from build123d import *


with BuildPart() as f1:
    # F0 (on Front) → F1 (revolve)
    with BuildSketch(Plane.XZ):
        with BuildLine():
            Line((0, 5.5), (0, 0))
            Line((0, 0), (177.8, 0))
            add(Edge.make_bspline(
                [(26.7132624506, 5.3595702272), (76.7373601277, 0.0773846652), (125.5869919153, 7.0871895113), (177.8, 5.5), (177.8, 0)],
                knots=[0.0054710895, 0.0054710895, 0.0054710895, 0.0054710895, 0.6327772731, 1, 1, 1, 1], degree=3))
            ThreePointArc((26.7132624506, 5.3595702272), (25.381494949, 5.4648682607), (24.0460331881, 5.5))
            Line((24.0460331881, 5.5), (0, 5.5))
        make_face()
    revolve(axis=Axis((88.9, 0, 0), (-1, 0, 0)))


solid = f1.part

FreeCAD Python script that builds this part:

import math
import FreeCAD as App
import Part
import Sketcher

V = App.Vector
Q = App.Units.Quantity

doc = App.newDocument("Part")
body = doc.addObject("PartDesign::Body", "Body")

sketch1 = body.newObject("Sketcher::SketchObject", "Sketch")
sketch1.AttachmentSupport = (doc.getObject("XZ_Plane"), [""])
sketch1.MapMode = "FlatFace"
sketch1.addGeometry([
    Part.LineSegment(V(0, 5.5, 0), V(0, 0, 0)),
    Part.LineSegment(V(0, 0, 0), V(177.8, 0, 0)),
    Part.BSplineCurve([V(26.713262, 5.35957, 0), V(76.73736, 0.077385, 0), V(125.586992, 7.08719, 0), V(177.8, 5.5, 0), V(177.8, 0, 0)], [4, 1, 4], [0.005471089, 0.632777273, 1], False, 3, [1, 1, 1, 1, 1], False),
    Part.ArcOfCircle(Part.Circle(V(24.046033, -19.9, 0), V(0, 0, 1), 25.4), math.radians(83.972313), math.radians(90)),
    Part.LineSegment(V(24.046033, 5.5, 0), V(0, 5.5, 0)),
], False)
sketch1.addConstraint([
    Sketcher.Constraint("Block", 2),
    Sketcher.Constraint("Coincident", 0, 2, 1, 1),
    Sketcher.Constraint("Coincident", 1, 2, 2, 2),
    Sketcher.Constraint("Coincident", 2, 1, 3, 1),
    Sketcher.Constraint("Tangent", 3, 2, 4, 1),
    Sketcher.Constraint("Coincident", 4, 2, 0, 1),
    Sketcher.Constraint("Vertical", 0),
    Sketcher.Constraint("Horizontal", 1),
    Sketcher.Constraint("Horizontal", 4),
    Sketcher.Constraint("PointOnObject", 4, 2, -2),
    Sketcher.Constraint("Radius", 3, Q("1 in")),
    Sketcher.Constraint("DistanceY", 0, 2, 0, 1, Q("5.5 mm")),
])
revolution = body.newObject("PartDesign::Revolution", "Revolution")
revolution.Profile = sketch1
revolution.ReferenceAxis = (sketch1, ["H_Axis"])
revolution.Angle = 360

doc.recompute()
